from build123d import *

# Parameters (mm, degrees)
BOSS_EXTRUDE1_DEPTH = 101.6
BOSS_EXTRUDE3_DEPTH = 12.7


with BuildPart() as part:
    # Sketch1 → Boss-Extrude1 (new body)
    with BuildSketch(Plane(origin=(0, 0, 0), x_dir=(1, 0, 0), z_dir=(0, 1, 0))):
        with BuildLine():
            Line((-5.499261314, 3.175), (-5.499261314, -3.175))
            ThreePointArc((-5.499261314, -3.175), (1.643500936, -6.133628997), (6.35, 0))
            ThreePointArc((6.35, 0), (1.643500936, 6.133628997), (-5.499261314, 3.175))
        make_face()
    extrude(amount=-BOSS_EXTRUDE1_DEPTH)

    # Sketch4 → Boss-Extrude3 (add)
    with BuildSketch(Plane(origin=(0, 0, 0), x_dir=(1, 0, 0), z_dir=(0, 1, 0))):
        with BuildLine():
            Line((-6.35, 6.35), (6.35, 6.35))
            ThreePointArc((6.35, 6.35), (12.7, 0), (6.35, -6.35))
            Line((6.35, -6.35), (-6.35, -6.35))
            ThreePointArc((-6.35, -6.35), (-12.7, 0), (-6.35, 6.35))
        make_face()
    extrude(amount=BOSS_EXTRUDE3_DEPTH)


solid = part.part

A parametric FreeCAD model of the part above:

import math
import FreeCAD as App
import Part
import Sketcher

V = App.Vector
Q = App.Units.Quantity

doc = App.newDocument("Part")
body = doc.addObject("PartDesign::Body", "Body")

sketch1 = body.newObject("Sketcher::SketchObject", "Sketch")
sketch1.AttachmentSupport = (doc.getObject("XZ_Plane"), [""])
sketch1.MapMode = "FlatFace"
sketch1.addGeometry([
    Part.LineSegment(V(-5.499261, -3.175, 0), V(-5.499261, 3.175, 0)),
    Part.ArcOfCircle(Part.Circle(V(0, 0, 0), V(0, 0, 1), 6.35), math.radians(0), math.radians(150)),
    Part.ArcOfCircle(Part.Circle(V(0, 0, 0), V(0, 0, 1), 6.35), math.radians(-150), math.radians(0)),
], False)
sketch1.addConstraint([
    Sketcher.Constraint("Coincident", 0, 2, 1, 2),
    Sketcher.Constraint("Tangent", 1, 1, 2, 2),
    Sketcher.Constraint("Coincident", 2, 1, 0, 1),
    Sketcher.Constraint("Vertical", 0),
    Sketcher.Constraint("Coincident", 1, 3, -1, 1),
    Sketcher.Constraint("Equal", 1, 2),
    Sketcher.Constraint("PointOnObject", 1, 1, -1),
    Sketcher.Constraint("Radius", 1, Q("0.25 in")),
    Sketcher.Constraint("DistanceY", 0, 1, 0, 2, Q("0.25 in")),
])
pad1 = body.newObject("PartDesign::Pad", "Pad")
pad1.Profile = sketch1
pad1.Length = Q("4 in")

sketch2 = body.newObject("Sketcher::SketchObject", "Sketch001")
sketch2.AttachmentSupport = (doc.getObject("XZ_Plane"), [""])
sketch2.MapMode = "FlatFace"
sketch2.addGeometry([
    Part.LineSegment(V(6.35, -6.35, 0), V(-6.35, -6.35, 0)),
    Part.ArcOfCircle(Part.Circle(V(-6.35, 0, 0), V(0, 0, 1), 6.35), math.radians(90), math.radians(270)),
    Part.LineSegment(V(-6.35, 6.35, 0), V(6.35, 6.35, 0)),
    Part.ArcOfCircle(Part.Circle(V(6.35, 0, 0), V(0, 0, 1), 6.35), math.radians(-90), math.radians(90)),
], False)
sketch2.addConstraint([
    Sketcher.Constraint("Tangent", 0, 2, 1, 2),
    Sketcher.Constraint("Tangent", 1, 1, 2, 1),
    Sketcher.Constraint("Tangent", 2, 2, 3, 2),
    Sketcher.Constraint("Tangent", 3, 1, 0, 1),
    Sketcher.Constraint("Horizontal", 0),
    Sketcher.Constraint("Horizontal", 2),
    Sketcher.Constraint("Symmetric", 1, 3, 3, 3, -1, 1),
    Sketcher.Constraint("Radius", 1, Q("0.25 in")),
    Sketcher.Constraint("DistanceX", 0, 2, 0, 1, Q("0.5 in")),
])
pad2 = body.newObject("PartDesign::Pad", "Pad001")
pad2.Profile = sketch2
pad2.Length = Q("0.5 in")
pad2.Reversed = True

doc.recompute()
